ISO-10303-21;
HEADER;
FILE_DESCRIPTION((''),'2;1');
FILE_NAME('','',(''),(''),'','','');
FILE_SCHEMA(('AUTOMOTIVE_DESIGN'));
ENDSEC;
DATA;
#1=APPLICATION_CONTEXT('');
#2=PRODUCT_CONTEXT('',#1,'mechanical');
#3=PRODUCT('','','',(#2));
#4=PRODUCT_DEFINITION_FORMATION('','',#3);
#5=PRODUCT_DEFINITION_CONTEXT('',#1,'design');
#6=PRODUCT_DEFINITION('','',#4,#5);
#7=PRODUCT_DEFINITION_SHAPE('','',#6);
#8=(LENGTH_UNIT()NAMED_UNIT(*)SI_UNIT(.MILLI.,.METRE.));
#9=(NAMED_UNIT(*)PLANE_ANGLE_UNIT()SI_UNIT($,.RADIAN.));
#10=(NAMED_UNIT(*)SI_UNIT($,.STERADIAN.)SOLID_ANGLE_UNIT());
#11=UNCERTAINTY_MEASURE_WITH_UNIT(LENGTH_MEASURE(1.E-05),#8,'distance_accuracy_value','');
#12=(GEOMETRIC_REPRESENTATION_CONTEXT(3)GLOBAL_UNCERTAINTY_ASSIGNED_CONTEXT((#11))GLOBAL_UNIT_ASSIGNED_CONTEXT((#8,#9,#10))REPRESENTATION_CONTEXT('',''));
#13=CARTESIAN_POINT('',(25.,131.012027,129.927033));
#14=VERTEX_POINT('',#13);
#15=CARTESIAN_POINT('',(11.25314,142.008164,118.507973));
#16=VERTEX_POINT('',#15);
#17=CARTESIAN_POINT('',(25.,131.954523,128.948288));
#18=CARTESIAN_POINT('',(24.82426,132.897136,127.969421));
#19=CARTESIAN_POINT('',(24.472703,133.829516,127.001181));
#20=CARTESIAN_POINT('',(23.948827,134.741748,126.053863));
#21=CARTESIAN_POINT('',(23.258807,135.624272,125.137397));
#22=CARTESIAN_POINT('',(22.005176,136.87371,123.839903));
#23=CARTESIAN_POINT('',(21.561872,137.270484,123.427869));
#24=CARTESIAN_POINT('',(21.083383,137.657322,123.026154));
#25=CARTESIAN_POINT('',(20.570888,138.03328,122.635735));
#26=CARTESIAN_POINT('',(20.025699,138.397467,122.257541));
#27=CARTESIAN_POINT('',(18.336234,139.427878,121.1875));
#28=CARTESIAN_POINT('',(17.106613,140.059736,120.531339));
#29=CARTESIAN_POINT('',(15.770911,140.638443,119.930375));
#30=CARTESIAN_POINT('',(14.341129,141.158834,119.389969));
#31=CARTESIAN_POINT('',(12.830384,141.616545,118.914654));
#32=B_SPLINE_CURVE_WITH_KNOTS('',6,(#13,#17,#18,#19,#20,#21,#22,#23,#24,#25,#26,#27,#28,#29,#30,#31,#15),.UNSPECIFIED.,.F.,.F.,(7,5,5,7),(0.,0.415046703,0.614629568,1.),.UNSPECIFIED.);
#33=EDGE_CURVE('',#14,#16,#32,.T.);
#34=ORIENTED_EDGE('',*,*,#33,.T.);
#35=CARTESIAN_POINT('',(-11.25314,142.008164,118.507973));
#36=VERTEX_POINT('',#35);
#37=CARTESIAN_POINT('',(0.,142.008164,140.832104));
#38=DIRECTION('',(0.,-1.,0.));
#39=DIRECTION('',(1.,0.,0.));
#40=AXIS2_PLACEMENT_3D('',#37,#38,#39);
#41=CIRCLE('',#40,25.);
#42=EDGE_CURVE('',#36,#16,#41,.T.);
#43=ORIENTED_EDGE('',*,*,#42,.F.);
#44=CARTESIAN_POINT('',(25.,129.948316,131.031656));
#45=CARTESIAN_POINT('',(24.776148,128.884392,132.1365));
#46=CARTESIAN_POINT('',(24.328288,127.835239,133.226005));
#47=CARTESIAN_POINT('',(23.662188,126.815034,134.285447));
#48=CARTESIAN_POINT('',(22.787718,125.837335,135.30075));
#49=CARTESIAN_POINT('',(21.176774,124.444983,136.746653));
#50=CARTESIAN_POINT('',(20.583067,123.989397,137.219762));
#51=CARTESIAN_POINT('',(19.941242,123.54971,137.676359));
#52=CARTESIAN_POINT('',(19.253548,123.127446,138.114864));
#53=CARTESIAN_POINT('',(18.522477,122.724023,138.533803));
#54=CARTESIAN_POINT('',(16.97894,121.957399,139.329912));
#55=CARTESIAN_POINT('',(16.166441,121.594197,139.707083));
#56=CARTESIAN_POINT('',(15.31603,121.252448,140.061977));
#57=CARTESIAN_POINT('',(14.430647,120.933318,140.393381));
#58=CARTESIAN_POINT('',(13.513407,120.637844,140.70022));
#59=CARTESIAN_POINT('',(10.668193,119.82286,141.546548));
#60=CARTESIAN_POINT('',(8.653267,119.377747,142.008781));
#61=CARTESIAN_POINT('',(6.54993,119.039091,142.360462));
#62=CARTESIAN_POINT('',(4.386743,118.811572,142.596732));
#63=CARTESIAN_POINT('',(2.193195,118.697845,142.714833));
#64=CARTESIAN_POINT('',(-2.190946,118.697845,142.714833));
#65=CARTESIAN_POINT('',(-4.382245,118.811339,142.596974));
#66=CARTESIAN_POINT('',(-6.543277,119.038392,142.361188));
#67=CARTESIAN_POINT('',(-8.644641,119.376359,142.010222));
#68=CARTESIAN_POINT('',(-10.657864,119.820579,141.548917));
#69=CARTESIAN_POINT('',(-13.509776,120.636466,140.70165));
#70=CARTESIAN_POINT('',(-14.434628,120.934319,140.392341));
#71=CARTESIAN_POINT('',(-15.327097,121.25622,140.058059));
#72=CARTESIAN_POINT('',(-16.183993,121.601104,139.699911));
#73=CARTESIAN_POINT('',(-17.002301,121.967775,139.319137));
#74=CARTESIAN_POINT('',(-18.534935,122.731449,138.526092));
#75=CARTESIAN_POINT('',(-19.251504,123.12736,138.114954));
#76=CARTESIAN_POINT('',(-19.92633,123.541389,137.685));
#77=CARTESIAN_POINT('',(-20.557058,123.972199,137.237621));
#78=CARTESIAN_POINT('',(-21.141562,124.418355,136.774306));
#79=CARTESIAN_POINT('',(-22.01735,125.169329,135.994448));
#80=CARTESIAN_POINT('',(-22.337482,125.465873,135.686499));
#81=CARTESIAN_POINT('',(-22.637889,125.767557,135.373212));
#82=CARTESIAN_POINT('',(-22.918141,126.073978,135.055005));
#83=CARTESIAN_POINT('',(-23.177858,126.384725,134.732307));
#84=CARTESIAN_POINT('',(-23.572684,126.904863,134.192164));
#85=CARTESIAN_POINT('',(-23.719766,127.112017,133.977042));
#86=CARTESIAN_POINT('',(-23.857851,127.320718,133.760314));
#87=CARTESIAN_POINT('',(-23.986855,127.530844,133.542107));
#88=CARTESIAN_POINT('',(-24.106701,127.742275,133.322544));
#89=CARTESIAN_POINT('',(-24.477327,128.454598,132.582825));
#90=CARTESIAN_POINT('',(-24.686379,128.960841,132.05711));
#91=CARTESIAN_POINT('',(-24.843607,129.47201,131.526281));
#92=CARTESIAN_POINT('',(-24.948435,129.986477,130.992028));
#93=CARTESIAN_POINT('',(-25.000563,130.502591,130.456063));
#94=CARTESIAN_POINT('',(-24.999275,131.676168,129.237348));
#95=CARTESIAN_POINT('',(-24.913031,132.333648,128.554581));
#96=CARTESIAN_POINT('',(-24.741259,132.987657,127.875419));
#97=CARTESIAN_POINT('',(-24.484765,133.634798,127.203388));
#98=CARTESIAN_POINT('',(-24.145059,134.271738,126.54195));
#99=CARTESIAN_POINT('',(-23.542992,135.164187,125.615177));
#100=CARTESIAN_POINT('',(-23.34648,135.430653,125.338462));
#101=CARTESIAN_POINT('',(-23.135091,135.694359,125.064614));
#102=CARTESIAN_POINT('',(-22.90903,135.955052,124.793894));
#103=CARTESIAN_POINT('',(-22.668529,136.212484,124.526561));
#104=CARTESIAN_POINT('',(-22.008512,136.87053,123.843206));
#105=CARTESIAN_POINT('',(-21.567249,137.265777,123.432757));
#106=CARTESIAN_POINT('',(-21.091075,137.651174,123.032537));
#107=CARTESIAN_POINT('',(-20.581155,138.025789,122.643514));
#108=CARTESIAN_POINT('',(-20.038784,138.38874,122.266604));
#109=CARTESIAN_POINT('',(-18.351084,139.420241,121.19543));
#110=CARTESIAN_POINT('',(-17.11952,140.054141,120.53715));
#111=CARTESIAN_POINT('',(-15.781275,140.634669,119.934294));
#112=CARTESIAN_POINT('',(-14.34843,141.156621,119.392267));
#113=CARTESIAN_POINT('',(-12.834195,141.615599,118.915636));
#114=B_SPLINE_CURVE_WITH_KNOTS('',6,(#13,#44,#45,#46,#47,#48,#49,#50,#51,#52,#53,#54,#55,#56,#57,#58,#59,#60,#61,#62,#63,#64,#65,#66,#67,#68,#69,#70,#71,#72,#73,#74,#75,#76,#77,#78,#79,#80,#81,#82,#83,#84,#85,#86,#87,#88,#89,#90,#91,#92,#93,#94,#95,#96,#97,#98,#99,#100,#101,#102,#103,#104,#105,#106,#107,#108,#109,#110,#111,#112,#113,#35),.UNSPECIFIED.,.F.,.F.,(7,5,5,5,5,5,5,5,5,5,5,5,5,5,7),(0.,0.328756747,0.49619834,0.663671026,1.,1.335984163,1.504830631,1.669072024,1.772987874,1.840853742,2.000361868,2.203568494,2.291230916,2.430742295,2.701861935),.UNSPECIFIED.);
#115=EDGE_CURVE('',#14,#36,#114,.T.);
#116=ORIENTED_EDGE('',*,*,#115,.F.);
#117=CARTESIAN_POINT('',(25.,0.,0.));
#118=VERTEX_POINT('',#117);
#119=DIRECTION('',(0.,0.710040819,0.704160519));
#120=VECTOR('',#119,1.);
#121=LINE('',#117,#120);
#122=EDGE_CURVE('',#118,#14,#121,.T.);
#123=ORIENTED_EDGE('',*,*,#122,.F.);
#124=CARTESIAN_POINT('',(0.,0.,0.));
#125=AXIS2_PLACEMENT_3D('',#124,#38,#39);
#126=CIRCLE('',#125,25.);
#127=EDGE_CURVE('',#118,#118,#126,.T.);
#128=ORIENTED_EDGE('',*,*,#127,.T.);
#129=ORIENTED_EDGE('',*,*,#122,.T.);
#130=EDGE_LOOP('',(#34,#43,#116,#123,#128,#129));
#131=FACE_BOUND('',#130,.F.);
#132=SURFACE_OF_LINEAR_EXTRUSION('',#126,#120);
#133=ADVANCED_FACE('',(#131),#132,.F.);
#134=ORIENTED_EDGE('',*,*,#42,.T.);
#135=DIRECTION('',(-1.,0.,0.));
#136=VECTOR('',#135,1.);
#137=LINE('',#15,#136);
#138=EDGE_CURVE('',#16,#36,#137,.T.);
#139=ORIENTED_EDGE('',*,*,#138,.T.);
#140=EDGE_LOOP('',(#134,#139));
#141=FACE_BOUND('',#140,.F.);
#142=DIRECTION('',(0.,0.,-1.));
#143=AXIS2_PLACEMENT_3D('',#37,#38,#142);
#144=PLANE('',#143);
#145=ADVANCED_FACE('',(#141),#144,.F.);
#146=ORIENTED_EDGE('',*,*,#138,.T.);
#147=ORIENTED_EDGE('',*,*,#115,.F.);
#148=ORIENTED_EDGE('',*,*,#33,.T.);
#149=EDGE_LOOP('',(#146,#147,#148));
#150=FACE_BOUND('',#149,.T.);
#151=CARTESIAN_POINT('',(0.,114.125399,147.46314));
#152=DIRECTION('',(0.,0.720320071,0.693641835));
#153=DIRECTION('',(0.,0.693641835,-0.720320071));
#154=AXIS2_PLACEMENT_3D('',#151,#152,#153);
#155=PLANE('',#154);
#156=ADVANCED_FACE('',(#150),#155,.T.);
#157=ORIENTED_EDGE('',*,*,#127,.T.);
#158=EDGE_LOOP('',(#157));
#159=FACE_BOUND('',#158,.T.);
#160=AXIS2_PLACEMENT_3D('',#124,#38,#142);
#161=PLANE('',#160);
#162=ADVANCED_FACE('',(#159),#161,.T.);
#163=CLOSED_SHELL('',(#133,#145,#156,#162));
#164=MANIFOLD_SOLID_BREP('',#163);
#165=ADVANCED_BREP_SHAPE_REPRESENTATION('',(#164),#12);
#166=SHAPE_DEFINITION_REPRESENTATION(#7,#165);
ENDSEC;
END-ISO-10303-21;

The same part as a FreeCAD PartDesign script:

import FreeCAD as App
import Part
import Sketcher
Q = App.Units.Quantity

doc = App.newDocument("Part")
params = doc.addObject("Spreadsheet::Sheet", "Params")
for row, (alias, value) in enumerate([
    ("sketch1_diameter", "50 mm"),
    ("sketch2_width", "200.000001 mm"),
    ("pocket1_length", "49 mm"),
    ("pocket2_length", "92 mm"),
], start=1):
    params.set(f"A{row}", alias)
    params.set(f"B{row}", "=" + value)
    params.setAlias(f"B{row}", alias)

body = doc.addObject("PartDesign::Body", "Body")

# Sketch on XZ plane
sketch1 = body.newObject("Sketcher::SketchObject", "Sketch")
sketch1.AttachmentSupport = (doc.getObject("XZ_Plane"), [""])
sketch1.MapMode = "FlatFace"
sketch1.addGeometry(Part.Circle(App.Vector(0, 0, 0), App.Vector(0, 0, 1), 25), False)
sketch1.addConstraint([
    Sketcher.Constraint("Coincident", 0, 3, -1, 1),
    Sketcher.Constraint("Diameter", 0, Q("50 mm")),
])
sketch1.setExpression("Constraints[1]", "Params.sketch1_diameter")

# Sketch on an angled plane
sketch2 = body.newObject("Sketcher::SketchObject", "Sketch001")
sketch2.Placement = App.Placement(App.Vector(0, 0, 0), App.Rotation(App.Vector(0, 0.710040819, 0.704160519), App.Vector(1.000000001, 0, 0), App.Vector(0, 0.704160519, -0.710040819), "ZXY"))
sketch2.addGeometry(Part.LineSegment(App.Vector(0, 0, 0), App.Vector(200, 0, 0)), False)
sketch2.addConstraint([
    Sketcher.Constraint("Horizontal", 0),
    Sketcher.Constraint("Coincident", 0, 1, -1, 1),
    Sketcher.Constraint("DistanceX", 0, 1, 0, 2, Q("200.000001 mm")),
])
sketch2.setExpression("Constraints[2]", "Params.sketch2_width")
doc.recompute()

additivepipe = body.newObject("PartDesign::AdditivePipe", "AdditivePipe")
additivepipe.Profile = sketch1
additivepipe.Spine = (sketch2, ["Edge1"])

# Sketch on YZ plane
sketch3 = body.newObject("Sketcher::SketchObject", "Sketch002")
sketch3.AttachmentSupport = (doc.getObject("YZ_Plane"), [""])
sketch3.MapMode = "FlatFace"
sketch3.addGeometry([
    Part.LineSegment(App.Vector(114, 147, 0), App.Vector(143, 117, 0)),
    Part.LineSegment(App.Vector(143, 117, 0), App.Vector(148, 180, 0)),
    Part.LineSegment(App.Vector(148, 180, 0), App.Vector(114, 147, 0)),
], False)
sketch3.addConstraint([
    Sketcher.Constraint("Coincident", 0, 2, 1, 1),
    Sketcher.Constraint("Coincident", 1, 2, 2, 1),
    Sketcher.Constraint("Coincident", 2, 2, 0, 1),
    Sketcher.Constraint("Perpendicular", 0, 2),
    Sketcher.Constraint("DistanceX", -1, 1, 2, 2, Q("114.125399 mm")),
    Sketcher.Constraint("Distance", 1, Q("63.329362 mm")),
    Sketcher.Constraint("Distance", 2, Q("47.49532 mm")),
    Sketcher.Constraint("DistanceY", -1, 1, 0, 2, Q("117.288671 mm")),
    Sketcher.Constraint("DistanceX", -1, 1, 1, 2, Q("148.33723 mm")),
])
pocket1 = body.newObject("PartDesign::Pocket", "Pocket")
pocket1.Profile = sketch3
pocket1.setExpression("Length", "Params.pocket1_length")

# Sketch on YZ plane
sketch4 = body.newObject("Sketcher::SketchObject", "Sketch003")
sketch4.AttachmentSupport = (doc.getObject("YZ_Plane"), [""])
sketch4.MapMode = "FlatFace"
sketch4.addGeometry([
    Part.LineSegment(App.Vector(114, 147, 0), App.Vector(143, 117, 0)),
    Part.LineSegment(App.Vector(143, 117, 0), App.Vector(148, 180, 0)),
    Part.LineSegment(App.Vector(148, 180, 0), App.Vector(114, 147, 0)),
], False)
sketch4.addConstraint([
    Sketcher.Constraint("Coincident", 0, 2, 1, 1),
    Sketcher.Constraint("Coincident", 1, 2, 2, 1),
    Sketcher.Constraint("Coincident", 2, 2, 0, 1),
    Sketcher.Constraint("Perpendicular", 0, 2),
    Sketcher.Constraint("DistanceX", -1, 1, 2, 2, Q("114.125399 mm")),
    Sketcher.Constraint("Distance", 1, Q("63.329362 mm")),
    Sketcher.Constraint("Distance", 2, Q("47.49532 mm")),
    Sketcher.Constraint("DistanceY", -1, 1, 0, 2, Q("117.288671 mm")),
    Sketcher.Constraint("DistanceX", -1, 1, 1, 2, Q("148.33723 mm")),
])
pocket2 = body.newObject("PartDesign::Pocket", "Pocket001")
pocket2.Profile = sketch4
pocket2.setExpression("Length", "Params.pocket2_length")
pocket2.Reversed = True

doc.recompute()
